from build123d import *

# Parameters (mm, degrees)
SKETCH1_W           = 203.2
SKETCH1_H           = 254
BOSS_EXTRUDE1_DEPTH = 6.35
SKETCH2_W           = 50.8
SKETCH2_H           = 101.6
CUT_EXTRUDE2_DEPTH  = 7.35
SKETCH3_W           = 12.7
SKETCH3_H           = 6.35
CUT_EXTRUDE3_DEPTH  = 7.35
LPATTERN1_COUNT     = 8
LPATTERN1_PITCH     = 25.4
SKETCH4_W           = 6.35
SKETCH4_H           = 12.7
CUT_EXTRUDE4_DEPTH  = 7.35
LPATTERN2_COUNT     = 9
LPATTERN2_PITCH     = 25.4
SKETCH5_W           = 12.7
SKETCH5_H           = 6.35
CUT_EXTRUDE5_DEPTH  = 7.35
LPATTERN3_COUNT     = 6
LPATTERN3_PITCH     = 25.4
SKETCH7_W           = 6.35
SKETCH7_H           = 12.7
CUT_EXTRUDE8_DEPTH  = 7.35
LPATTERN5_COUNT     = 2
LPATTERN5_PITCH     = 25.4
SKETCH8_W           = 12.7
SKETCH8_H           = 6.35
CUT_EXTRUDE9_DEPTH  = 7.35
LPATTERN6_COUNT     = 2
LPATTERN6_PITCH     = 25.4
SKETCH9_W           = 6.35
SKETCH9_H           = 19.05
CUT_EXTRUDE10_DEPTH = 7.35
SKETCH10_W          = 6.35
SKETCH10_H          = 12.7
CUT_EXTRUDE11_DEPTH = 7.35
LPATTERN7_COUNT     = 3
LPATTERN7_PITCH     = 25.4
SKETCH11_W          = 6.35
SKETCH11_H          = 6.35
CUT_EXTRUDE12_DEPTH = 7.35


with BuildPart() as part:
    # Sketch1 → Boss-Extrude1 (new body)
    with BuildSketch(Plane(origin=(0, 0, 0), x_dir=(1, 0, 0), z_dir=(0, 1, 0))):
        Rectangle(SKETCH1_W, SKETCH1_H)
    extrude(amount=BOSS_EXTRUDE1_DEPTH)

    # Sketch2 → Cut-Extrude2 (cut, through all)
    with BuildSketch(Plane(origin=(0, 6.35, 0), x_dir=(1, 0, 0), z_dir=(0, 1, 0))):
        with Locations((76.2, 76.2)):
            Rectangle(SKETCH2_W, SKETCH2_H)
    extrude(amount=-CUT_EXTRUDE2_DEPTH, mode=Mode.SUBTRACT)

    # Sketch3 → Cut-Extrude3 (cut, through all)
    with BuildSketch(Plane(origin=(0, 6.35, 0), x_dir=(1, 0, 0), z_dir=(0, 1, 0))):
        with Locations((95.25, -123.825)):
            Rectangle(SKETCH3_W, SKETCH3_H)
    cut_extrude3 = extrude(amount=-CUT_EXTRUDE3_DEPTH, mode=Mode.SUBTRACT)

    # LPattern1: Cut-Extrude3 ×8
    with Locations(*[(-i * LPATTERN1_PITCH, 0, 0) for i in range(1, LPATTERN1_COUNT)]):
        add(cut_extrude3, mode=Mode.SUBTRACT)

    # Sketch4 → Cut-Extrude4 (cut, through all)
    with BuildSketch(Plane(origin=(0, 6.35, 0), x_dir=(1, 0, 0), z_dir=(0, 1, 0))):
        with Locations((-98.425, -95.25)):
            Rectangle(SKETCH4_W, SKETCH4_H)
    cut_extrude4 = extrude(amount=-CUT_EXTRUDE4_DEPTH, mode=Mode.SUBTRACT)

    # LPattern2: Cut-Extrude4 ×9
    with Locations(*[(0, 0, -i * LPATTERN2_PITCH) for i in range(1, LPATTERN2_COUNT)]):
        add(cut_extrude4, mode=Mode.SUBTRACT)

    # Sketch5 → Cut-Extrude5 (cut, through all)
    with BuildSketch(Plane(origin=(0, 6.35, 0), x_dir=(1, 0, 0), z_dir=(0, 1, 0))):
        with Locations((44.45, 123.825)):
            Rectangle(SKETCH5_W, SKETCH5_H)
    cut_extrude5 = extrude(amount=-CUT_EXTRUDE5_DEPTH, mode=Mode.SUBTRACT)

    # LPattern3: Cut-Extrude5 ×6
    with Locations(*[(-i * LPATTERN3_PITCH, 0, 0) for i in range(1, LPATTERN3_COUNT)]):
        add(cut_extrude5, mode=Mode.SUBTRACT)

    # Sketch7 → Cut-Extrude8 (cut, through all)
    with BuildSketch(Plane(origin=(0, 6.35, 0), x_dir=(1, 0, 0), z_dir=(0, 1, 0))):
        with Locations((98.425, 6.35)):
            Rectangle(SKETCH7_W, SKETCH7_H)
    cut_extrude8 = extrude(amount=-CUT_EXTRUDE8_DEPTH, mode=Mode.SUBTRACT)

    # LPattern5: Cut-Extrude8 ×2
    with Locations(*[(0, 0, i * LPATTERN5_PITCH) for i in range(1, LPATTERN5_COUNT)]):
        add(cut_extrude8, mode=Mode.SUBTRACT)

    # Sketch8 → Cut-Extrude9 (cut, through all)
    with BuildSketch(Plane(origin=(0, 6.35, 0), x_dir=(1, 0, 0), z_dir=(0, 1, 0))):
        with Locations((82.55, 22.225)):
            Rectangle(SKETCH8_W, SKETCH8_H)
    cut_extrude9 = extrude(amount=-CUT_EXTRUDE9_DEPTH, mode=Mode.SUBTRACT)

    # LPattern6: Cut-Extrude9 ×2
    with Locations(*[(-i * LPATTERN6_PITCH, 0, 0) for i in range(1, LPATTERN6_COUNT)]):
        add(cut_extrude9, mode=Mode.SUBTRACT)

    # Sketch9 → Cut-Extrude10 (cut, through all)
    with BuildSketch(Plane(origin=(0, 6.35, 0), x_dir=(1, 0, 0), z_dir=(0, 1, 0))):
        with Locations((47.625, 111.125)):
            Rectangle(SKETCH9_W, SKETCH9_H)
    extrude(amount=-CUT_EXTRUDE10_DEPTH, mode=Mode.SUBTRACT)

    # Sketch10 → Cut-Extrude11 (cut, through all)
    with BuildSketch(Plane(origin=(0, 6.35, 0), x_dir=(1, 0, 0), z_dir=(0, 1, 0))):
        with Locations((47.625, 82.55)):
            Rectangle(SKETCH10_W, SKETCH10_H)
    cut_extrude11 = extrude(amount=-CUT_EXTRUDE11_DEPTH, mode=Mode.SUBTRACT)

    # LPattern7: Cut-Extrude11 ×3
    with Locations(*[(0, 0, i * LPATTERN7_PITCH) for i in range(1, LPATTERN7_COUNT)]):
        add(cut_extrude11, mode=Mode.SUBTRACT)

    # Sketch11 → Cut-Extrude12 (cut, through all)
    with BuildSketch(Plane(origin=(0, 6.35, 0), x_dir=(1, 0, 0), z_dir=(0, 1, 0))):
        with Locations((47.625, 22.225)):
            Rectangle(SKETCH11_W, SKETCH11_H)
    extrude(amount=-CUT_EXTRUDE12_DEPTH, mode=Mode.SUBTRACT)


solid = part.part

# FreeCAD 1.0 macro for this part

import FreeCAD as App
import Part
import Sketcher

V = App.Vector
Q = App.Units.Quantity


def add_polygon(sketch, points):
    """Adds a closed chain of lines whose ends are joined by coincident constraints."""
    first, n = sketch.GeometryCount, len(points)
    for a, b in zip(points, points[1:] + points[:1]):
        sketch.addGeometry(Part.LineSegment(App.Vector(*a, 0), App.Vector(*b, 0)), False)
    for i in range(n):
        sketch.addConstraint(Sketcher.Constraint("Coincident", first + i, 2, first + (i + 1) % n, 1))

doc = App.newDocument("Part")
body = doc.addObject("PartDesign::Body", "Body")

sketch1 = doc.addObject("Sketcher::SketchObject", "Sketch")
body.addObject(sketch1)
sketch1.AttachmentSupport = (doc.XZ_Plane, [""])
sketch1.MapMode = "FlatFace"
add_polygon(sketch1, [(-102, -127), (-102, 127), (102, 127), (102, -127)])
sketch1.addConstraint([
    Sketcher.Constraint("Vertical", 0),
    Sketcher.Constraint("Horizontal", 1),
    Sketcher.Constraint("Vertical", 2),
    Sketcher.Constraint("Horizontal", 3),
    Sketcher.Constraint("Symmetric", 0, 2, 2, 2, -1, 1),
    Sketcher.Constraint("DistanceX", 1, 1, 1, 2, Q("8 in")),
    Sketcher.Constraint("DistanceY", 0, 1, 0, 2, Q("10 in")),
])
pad1 = doc.addObject("PartDesign::Pad", "Pad")
body.addObject(pad1)
pad1.Profile = sketch1
pad1.Length = Q("0.25 in")
pad1.Reversed = True

sketch2 = doc.addObject("Sketcher::SketchObject", "Sketch001")
body.addObject(sketch2)
sketch2.AttachmentSupport = (doc.XZ_Plane, [""])
sketch2.MapMode = "FlatFace"
sketch2.AttachmentOffset = App.Placement(V(0, 0, -0.25 * 25.4), App.Rotation())
add_polygon(sketch2, [(51, -127), (51, -25), (102, -25), (102, -127)])
sketch2.addConstraint([
    Sketcher.Constraint("Vertical", 0),
    Sketcher.Constraint("Horizontal", 1),
    Sketcher.Constraint("Vertical", 2),
    Sketcher.Constraint("Horizontal", 3),
    Sketcher.Constraint("DistanceX", 1, 1, 1, 2, Q("2 in")),
    Sketcher.Constraint("DistanceY", 0, 1, 0, 2, Q("4 in")),
    Sketcher.Constraint("DistanceX", -1, 1, 0, 2, Q("2 in")),
    Sketcher.Constraint("DistanceY", 0, 2, -1, 1, Q("1 in")),
])
pocket1 = doc.addObject("PartDesign::Pocket", "Pocket")
body.addObject(pocket1)
pocket1.Profile = sketch2
pocket1.Type = "ThroughAll"
pocket1.Reversed = True

sketch3 = doc.addObject("Sketcher::SketchObject", "Sketch002")
body.addObject(sketch3)
sketch3.AttachmentSupport = (doc.XZ_Plane, [""])
sketch3.MapMode = "FlatFace"
sketch3.AttachmentOffset = App.Placement(V(0, 0, -0.25 * 25.4), App.Rotation())
add_polygon(sketch3, [(89, 121), (89, 127), (102, 127), (102, 121)])
sketch3.addConstraint([
    Sketcher.Constraint("Vertical", 0),
    Sketcher.Constraint("Horizontal", 1),
    Sketcher.Constraint("Vertical", 2),
    Sketcher.Constraint("Horizontal", 3),
    Sketcher.Constraint("DistanceX", 1, 1, 1, 2, Q("0.5 in")),
    Sketcher.Constraint("DistanceY", -1, 1, 0, 2, Q("5 in")),
    Sketcher.Constraint("DistanceX", -1, 1, 1, 2, Q("4 in")),
    Sketcher.Constraint("DistanceY", 0, 1, 0, 2, Q("0.25 in")),
])
pocket2 = doc.addObject("PartDesign::Pocket", "Pocket001")
body.addObject(pocket2)
pocket2.Profile = sketch3
pocket2.Type = "ThroughAll"
pocket2.Reversed = True
doc.recompute()

linearpattern = doc.addObject("PartDesign::LinearPattern", "LinearPattern")
body.addObject(linearpattern)
linearpattern.Originals = [pocket2]
linearpattern.Direction = (doc.X_Axis, [""])
linearpattern.Mode = "offset"
linearpattern.Offset = Q("1 in")
linearpattern.Occurrences = 8
linearpattern.Reversed = True
body.Tip = linearpattern

sketch4 = doc.addObject("Sketcher::SketchObject", "Sketch003")
body.addObject(sketch4)
sketch4.AttachmentSupport = (doc.XZ_Plane, [""])
sketch4.MapMode = "FlatFace"
sketch4.AttachmentOffset = App.Placement(V(0, 0, -0.25 * 25.4), App.Rotation())
add_polygon(sketch4, [(-102, 89), (-102, 102), (-95, 102), (-95, 89)])
sketch4.addConstraint([
    Sketcher.Constraint("Vertical", 0),
    Sketcher.Constraint("Horizontal", 1),
    Sketcher.Constraint("Vertical", 2),
    Sketcher.Constraint("Horizontal", 3),
    Sketcher.Constraint("DistanceY", 0, 1, 0, 2, Q("0.5 in")),
    Sketcher.Constraint("DistanceX", 0, 2, -1, 1, Q("4 in")),
    Sketcher.Constraint("DistanceY", -1, 1, 0, 2, Q("4 in")),
    Sketcher.Constraint("DistanceX", 1, 1, 1, 2, Q("0.25 in")),
])
pocket3 = doc.addObject("PartDesign::Pocket", "Pocket002")
body.addObject(pocket3)
pocket3.Profile = sketch4
pocket3.Type = "ThroughAll"
pocket3.Reversed = True
doc.recompute()

linearpattern2 = doc.addObject("PartDesign::LinearPattern", "LinearPattern001")
body.addObject(linearpattern2)
linearpattern2.Originals = [pocket3]
linearpattern2.Direction = (doc.Z_Axis, [""])
linearpattern2.Mode = "offset"
linearpattern2.Offset = Q("1 in")
linearpattern2.Occurrences = 9
linearpattern2.Reversed = True
body.Tip = linearpattern2

sketch5 = doc.addObject("Sketcher::SketchObject", "Sketch004")
body.addObject(sketch5)
sketch5.AttachmentSupport = (doc.XZ_Plane, [""])
sketch5.MapMode = "FlatFace"
sketch5.AttachmentOffset = App.Placement(V(0, 0, -0.25 * 25.4), App.Rotation())
add_polygon(sketch5, [(38, -127), (38, -121), (51, -121), (51, -127)])
sketch5.addConstraint([
    Sketcher.Constraint("Vertical", 0),
    Sketcher.Constraint("Horizontal", 1),
    Sketcher.Constraint("Vertical", 2),
    Sketcher.Constraint("Horizontal", 3),
    Sketcher.Constraint("DistanceX", 1, 1, 1, 2, Q("0.5 in")),
    Sketcher.Constraint("DistanceX", -1, 1, 1, 2, Q("2 in")),
    Sketcher.Constraint("DistanceY", 2, 2, -1, 1, Q("5 in")),
    Sketcher.Constraint("DistanceY", 0, 1, 0, 2, Q("0.25 in")),
])
pocket4 = doc.addObject("PartDesign::Pocket", "Pocket003")
body.addObject(pocket4)
pocket4.Profile = sketch5
pocket4.Type = "ThroughAll"
pocket4.Reversed = True
doc.recompute()

linearpattern3 = doc.addObject("PartDesign::LinearPattern", "LinearPattern002")
body.addObject(linearpattern3)
linearpattern3.Originals = [pocket4]
linearpattern3.Direction = (doc.X_Axis, [""])
linearpattern3.Mode = "offset"
linearpattern3.Offset = Q("1 in")
linearpattern3.Occurrences = 6
linearpattern3.Reversed = True
body.Tip = linearpattern3

sketch6 = doc.addObject("Sketcher::SketchObject", "Sketch005")
body.addObject(sketch6)
sketch6.AttachmentSupport = (doc.XZ_Plane, [""])
sketch6.MapMode = "FlatFace"
sketch6.AttachmentOffset = App.Placement(V(0, 0, -0.25 * 25.4), App.Rotation())
add_polygon(sketch6, [(95, -13), (95, 0), (102, 0), (102, -13)])
sketch6.addConstraint([
    Sketcher.Constraint("Vertical", 0),
    Sketcher.Constraint("Horizontal", 1),
    Sketcher.Constraint("Vertical", 2),
    Sketcher.Constraint("Horizontal", 3),
    Sketcher.Constraint("PointOnObject", 0, 2, -1),
    Sketcher.Constraint("DistanceY", 0, 1, 0, 2, Q("0.5 in")),
    Sketcher.Constraint("DistanceX", -1, 1, 1, 2, Q("4 in")),
    Sketcher.Constraint("DistanceX", 1, 1, 1, 2, Q("0.25 in")),
])
pocket5 = doc.addObject("PartDesign::Pocket", "Pocket004")
body.addObject(pocket5)
pocket5.Profile = sketch6
pocket5.Type = "ThroughAll"
pocket5.Reversed = True
doc.recompute()

linearpattern4 = doc.addObject("PartDesign::LinearPattern", "LinearPattern003")
body.addObject(linearpattern4)
linearpattern4.Originals = [pocket5]
linearpattern4.Direction = (doc.Z_Axis, [""])
linearpattern4.Mode = "offset"
linearpattern4.Offset = Q("1 in")
linearpattern4.Occurrences = 2
body.Tip = linearpattern4

sketch7 = doc.addObject("Sketcher::SketchObject", "Sketch006")
body.addObject(sketch7)
sketch7.AttachmentSupport = (doc.XZ_Plane, [""])
sketch7.MapMode = "FlatFace"
sketch7.AttachmentOffset = App.Placement(V(0, 0, -0.25 * 25.4), App.Rotation())
add_polygon(sketch7, [(76, -25), (76, -19), (89, -19), (89, -25)])
sketch7.addConstraint([
    Sketcher.Constraint("Vertical", 0),
    Sketcher.Constraint("Horizontal", 1),
    Sketcher.Constraint("Vertical", 2),
    Sketcher.Constraint("Horizontal", 3),
    Sketcher.Constraint("DistanceX", 1, 1, 1, 2, Q("0.5 in")),
    Sketcher.Constraint("DistanceX", -1, 1, 0, 2, Q("3 in")),
    Sketcher.Constraint("DistanceY", 2, 2, -1, 1, Q("1 in")),
    Sketcher.Constraint("DistanceY", 0, 1, 0, 2, Q("0.25 in")),
])
pocket6 = doc.addObject("PartDesign::Pocket", "Pocket005")
body.addObject(pocket6)
pocket6.Profile = sketch7
pocket6.Type = "ThroughAll"
pocket6.Reversed = True
doc.recompute()

linearpattern5 = doc.addObject("PartDesign::LinearPattern", "LinearPattern004")
body.addObject(linearpattern5)
linearpattern5.Originals = [pocket6]
linearpattern5.Direction = (doc.X_Axis, [""])
linearpattern5.Mode = "offset"
linearpattern5.Offset = Q("1 in")
linearpattern5.Occurrences = 2
linearpattern5.Reversed = True
body.Tip = linearpattern5

sketch8 = doc.addObject("Sketcher::SketchObject", "Sketch007")
body.addObject(sketch8)
sketch8.AttachmentSupport = (doc.XZ_Plane, [""])
sketch8.MapMode = "FlatFace"
sketch8.AttachmentOffset = App.Placement(V(0, 0, -0.25 * 25.4), App.Rotation())
add_polygon(sketch8, [(44, -121), (44, -102), (51, -102), (51, -121)])
sketch8.addConstraint([
    Sketcher.Constraint("Vertical", 0),
    Sketcher.Constraint("Horizontal", 1),
    Sketcher.Constraint("Vertical", 2),
    Sketcher.Constraint("Horizontal", 3),
    Sketcher.Constraint("DistanceY", 0, 2, -1, 1, Q("4 in")),
    Sketcher.Constraint("DistanceX", -1, 1, 1, 2, Q("2 in")),
    Sketcher.Constraint("DistanceX", 1, 1, 1, 2, Q("0.25 in")),
    Sketcher.Constraint("DistanceY", 0, 1, 0, 2, Q("0.75 in")),
])
pocket7 = doc.addObject("PartDesign::Pocket", "Pocket006")
body.addObject(pocket7)
pocket7.Profile = sketch8
pocket7.Type = "ThroughAll"
pocket7.Reversed = True

sketch9 = doc.addObject("Sketcher::SketchObject", "Sketch008")
body.addObject(sketch9)
sketch9.AttachmentSupport = (doc.XZ_Plane, [""])
sketch9.MapMode = "FlatFace"
sketch9.AttachmentOffset = App.Placement(V(0, 0, -0.25 * 25.4), App.Rotation())
add_polygon(sketch9, [(44, -89), (44, -76), (51, -76), (51, -89)])
sketch9.addConstraint([
    Sketcher.Constraint("Vertical", 0),
    Sketcher.Constraint("Horizontal", 1),
    Sketcher.Constraint("Vertical", 2),
    Sketcher.Constraint("Horizontal", 3),
    Sketcher.Constraint("DistanceY", 0, 1, 0, 2, Q("0.5 in")),
    Sketcher.Constraint("DistanceY", 0, 2, -1, 1, Q("3 in")),
    Sketcher.Constraint("DistanceX", -1, 1, 1, 2, Q("2 in")),
    Sketcher.Constraint("DistanceX", 1, 1, 1, 2, Q("0.25 in")),
])
pocket8 = doc.addObject("PartDesign::Pocket", "Pocket007")
body.addObject(pocket8)
pocket8.Profile = sketch9
pocket8.Type = "ThroughAll"
pocket8.Reversed = True
doc.recompute()

linearpattern6 = doc.addObject("PartDesign::LinearPattern", "LinearPattern005")
body.addObject(linearpattern6)
linearpattern6.Originals = [pocket8]
linearpattern6.Direction = (doc.Z_Axis, [""])
linearpattern6.Mode = "offset"
linearpattern6.Offset = Q("1 in")
linearpattern6.Occurrences = 3
body.Tip = linearpattern6

sketch10 = doc.addObject("Sketcher::SketchObject", "Sketch009")
body.addObject(sketch10)
sketch10.AttachmentSupport = (doc.XZ_Plane, [""])
sketch10.MapMode = "FlatFace"
sketch10.AttachmentOffset = App.Placement(V(0, 0, -0.25 * 25.4), App.Rotation())
add_polygon(sketch10, [(44, -25), (44, -19), (51, -19), (51, -25)])
sketch10.addConstraint([
    Sketcher.Constraint("Vertical", 0),
    Sketcher.Constraint("Horizontal", 1),
    Sketcher.Constraint("Vertical", 2),
    Sketcher.Constraint("Horizontal", 3),
    Sketcher.Constraint("Equal", 3, 0),
    Sketcher.Constraint("DistanceX", -1, 1, 1, 2, Q("2 in")),
    Sketcher.Constraint("DistanceY", 2, 2, -1, 1, Q("1 in")),
    Sketcher.Constraint("DistanceX", 1, 1, 1, 2, Q("0.25 in")),
])
pocket9 = doc.addObject("PartDesign::Pocket", "Pocket008")
body.addObject(pocket9)
pocket9.Profile = sketch10
pocket9.Type = "ThroughAll"
pocket9.Reversed = True

doc.recompute()
